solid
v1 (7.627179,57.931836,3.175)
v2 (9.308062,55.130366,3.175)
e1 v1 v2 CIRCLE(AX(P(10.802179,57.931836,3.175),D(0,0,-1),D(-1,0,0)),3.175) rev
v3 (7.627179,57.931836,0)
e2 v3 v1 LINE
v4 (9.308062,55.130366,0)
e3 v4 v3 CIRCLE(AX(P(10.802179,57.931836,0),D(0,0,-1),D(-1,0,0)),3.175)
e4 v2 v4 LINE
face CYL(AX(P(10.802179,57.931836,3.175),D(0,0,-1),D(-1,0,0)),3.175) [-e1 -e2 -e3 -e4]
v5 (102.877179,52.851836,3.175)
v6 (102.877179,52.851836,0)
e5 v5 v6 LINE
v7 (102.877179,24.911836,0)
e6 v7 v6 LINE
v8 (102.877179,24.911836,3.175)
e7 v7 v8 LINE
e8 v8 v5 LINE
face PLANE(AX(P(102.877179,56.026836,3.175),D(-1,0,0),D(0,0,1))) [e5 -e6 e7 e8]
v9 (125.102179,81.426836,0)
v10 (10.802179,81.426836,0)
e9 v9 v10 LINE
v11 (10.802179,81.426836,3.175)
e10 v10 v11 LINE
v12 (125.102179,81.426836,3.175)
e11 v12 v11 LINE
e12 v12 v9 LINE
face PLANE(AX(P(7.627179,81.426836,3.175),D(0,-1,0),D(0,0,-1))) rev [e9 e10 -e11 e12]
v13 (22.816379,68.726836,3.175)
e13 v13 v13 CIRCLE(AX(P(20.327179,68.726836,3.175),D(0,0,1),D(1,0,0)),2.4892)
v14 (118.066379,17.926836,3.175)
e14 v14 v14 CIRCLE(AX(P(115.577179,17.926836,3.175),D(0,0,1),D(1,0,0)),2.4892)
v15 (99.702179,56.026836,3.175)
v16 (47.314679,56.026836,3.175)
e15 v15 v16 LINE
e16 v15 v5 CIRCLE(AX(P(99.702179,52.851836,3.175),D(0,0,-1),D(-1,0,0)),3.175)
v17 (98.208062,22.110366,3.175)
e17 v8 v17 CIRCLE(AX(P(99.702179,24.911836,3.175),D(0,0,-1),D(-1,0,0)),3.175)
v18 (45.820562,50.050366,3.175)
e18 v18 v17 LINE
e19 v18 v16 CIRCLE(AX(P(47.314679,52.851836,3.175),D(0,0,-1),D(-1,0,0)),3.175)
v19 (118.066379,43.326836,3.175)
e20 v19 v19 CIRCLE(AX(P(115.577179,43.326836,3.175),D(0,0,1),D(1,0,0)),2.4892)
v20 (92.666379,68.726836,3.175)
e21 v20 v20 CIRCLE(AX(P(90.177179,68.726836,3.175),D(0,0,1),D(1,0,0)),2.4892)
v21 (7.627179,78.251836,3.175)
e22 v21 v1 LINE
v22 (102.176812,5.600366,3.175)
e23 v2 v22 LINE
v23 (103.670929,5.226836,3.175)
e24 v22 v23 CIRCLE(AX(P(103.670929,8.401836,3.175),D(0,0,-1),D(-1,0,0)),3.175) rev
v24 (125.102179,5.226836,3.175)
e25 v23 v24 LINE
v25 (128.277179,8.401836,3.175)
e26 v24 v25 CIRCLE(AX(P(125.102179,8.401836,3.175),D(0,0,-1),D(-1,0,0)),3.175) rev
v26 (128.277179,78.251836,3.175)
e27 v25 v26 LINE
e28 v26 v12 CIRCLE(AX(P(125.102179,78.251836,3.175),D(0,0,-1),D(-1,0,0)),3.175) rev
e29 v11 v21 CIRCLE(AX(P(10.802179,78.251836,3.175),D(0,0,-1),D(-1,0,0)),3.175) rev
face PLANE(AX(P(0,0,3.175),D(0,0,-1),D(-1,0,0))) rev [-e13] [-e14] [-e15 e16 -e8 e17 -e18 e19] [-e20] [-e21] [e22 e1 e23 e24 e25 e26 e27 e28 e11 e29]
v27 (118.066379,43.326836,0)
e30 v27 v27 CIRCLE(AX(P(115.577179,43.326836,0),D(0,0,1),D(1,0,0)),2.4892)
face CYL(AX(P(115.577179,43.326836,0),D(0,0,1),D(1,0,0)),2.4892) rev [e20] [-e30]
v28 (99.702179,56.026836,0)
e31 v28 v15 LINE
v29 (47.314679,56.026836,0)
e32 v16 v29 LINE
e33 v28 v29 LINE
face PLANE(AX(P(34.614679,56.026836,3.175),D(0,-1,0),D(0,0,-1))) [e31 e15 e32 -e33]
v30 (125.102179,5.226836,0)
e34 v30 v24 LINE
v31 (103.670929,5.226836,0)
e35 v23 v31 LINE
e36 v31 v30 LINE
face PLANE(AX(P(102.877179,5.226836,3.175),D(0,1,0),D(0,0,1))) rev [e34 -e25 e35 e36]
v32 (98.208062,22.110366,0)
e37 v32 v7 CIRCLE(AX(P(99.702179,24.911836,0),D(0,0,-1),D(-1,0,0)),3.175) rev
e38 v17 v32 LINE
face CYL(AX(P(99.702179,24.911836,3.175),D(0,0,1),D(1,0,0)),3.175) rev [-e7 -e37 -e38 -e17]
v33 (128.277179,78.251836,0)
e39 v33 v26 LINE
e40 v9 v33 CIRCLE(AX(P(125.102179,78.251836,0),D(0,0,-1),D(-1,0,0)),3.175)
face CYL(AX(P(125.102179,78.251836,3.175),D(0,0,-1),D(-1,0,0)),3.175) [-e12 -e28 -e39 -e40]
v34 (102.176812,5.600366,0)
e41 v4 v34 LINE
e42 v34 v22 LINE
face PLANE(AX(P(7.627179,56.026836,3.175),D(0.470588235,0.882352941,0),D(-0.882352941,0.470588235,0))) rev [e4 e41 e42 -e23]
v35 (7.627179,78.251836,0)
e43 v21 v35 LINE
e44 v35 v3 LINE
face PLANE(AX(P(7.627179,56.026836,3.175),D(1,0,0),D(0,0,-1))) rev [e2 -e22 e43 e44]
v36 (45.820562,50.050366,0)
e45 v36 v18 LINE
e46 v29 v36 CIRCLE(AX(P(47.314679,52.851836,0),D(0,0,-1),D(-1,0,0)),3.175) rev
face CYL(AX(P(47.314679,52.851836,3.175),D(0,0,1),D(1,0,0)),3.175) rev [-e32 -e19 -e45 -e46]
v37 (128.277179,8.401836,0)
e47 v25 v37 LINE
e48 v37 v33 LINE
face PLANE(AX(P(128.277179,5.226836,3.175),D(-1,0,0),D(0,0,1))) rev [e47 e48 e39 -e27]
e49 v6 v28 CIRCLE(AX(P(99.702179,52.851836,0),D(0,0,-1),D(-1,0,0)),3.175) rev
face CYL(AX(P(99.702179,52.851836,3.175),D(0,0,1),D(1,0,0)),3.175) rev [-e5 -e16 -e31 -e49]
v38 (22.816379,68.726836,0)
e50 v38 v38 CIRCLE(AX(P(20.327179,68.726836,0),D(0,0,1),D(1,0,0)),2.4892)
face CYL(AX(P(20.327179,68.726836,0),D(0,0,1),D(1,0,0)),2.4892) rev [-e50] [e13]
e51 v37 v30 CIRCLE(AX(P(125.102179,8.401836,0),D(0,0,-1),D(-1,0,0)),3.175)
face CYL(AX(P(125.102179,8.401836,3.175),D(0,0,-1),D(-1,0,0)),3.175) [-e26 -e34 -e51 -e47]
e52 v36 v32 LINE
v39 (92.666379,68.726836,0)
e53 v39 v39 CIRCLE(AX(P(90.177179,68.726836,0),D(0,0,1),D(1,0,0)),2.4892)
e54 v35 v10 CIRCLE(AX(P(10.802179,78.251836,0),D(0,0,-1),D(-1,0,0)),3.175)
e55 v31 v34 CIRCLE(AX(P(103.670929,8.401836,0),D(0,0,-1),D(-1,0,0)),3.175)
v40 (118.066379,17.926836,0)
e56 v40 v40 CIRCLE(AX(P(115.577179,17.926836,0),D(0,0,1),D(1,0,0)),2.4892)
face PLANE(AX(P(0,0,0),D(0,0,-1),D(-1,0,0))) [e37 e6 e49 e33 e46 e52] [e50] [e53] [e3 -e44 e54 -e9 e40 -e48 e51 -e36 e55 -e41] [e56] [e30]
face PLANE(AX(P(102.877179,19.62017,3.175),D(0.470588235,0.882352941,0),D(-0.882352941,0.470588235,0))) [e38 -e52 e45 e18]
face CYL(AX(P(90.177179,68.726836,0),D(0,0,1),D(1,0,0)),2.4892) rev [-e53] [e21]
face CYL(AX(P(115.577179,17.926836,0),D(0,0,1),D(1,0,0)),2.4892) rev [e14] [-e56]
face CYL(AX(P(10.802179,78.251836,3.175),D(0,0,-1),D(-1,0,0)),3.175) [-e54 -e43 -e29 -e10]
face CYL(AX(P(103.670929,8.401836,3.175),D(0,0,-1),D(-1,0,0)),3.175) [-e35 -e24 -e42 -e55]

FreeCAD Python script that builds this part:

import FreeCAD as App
import Part
import Sketcher

V = App.Vector
Q = App.Units.Quantity


def edges_at(feature, points):
    """Names of the edges that pass closest to the given points."""
    edges = feature.Shape.Edges
    near = lambda p: min(range(len(edges)), key=lambda i: edges[i].distToShape(Part.Vertex(*p))[0])
    return sorted({f"Edge{near(p) + 1}" for p in points})


def add_polygon(sketch, points):
    """Adds a closed chain of lines whose ends are joined by coincident constraints."""
    first, n = sketch.GeometryCount, len(points)
    for a, b in zip(points, points[1:] + points[:1]):
        sketch.addGeometry(Part.LineSegment(App.Vector(*a, 0), App.Vector(*b, 0)), False)
    for i in range(n):
        sketch.addConstraint(Sketcher.Constraint("Coincident", first + i, 2, first + (i + 1) % n, 1))

doc = App.newDocument("Part")
params = doc.addObject("Spreadsheet::Sheet", "Params")
for row, (alias, value) in enumerate([
    ("sketch1_width", "1 in"),
    ("sketch1_height", "3 in"),
    ("sketch1_width2", "4.75 in"),
    ("sketch1_width3", "2.6875 in"),
    ("pad1_length", "0.125 in"),
    ("sketch2_diameter", "0.196 in"),
    ("fillet_radius", "0.125 in"),
], start=1):
    params.set(f"A{row}", alias)
    params.set(f"B{row}", "=" + value)
    params.setAlias(f"B{row}", alias)

body = doc.addObject("PartDesign::Body", "Body")

# Sketch on XY plane
sketch1 = body.newObject("Sketcher::SketchObject", "Sketch")
sketch1.AttachmentSupport = (doc.getObject("XY_Plane"), [""])
sketch1.MapMode = "FlatFace"
add_polygon(sketch1, [(8, 56), (103, 5), (128, 5), (128, 81), (8, 81)])  # lines 0-4
add_polygon(sketch1, [(103, 20), (35, 56), (103, 56)])  # lines 5-7
sketch1.addConstraint([
    Sketcher.Constraint("Horizontal", 1),
    Sketcher.Constraint("Vertical", 2),
    Sketcher.Constraint("Horizontal", 3),
    Sketcher.Constraint("Vertical", 4),
    Sketcher.Constraint("Horizontal", 6),
    Sketcher.Constraint("Vertical", 7),
    Sketcher.Constraint("Parallel", 0, 5),
    Sketcher.Constraint("Horizontal", 4, 2, 5, 2),
    Sketcher.Constraint("Vertical", 0, 2, 6, 2),
    Sketcher.Constraint("Equal", 1, 4),
    Sketcher.Constraint("DistanceX", 1, 1, 1, 2, Q("1 in")),
    Sketcher.Constraint("DistanceY", 2, 1, 2, 2, Q("3 in")),
    Sketcher.Constraint("DistanceX", 3, 2, 3, 1, Q("4.75 in")),
    Sketcher.Constraint("DistanceX", 6, 1, 6, 2, Q("2.6875 in")),
    Sketcher.Constraint("DistanceX", -1, 1, 0, 2, Q("102.877179 mm")),
    Sketcher.Constraint("DistanceY", -1, 1, 7, 2, Q("19.62017 mm")),
])
sketch1.setExpression("Constraints[18]", "Params.sketch1_width")
sketch1.setExpression("Constraints[19]", "Params.sketch1_height")
sketch1.setExpression("Constraints[20]", "Params.sketch1_width2")
sketch1.setExpression("Constraints[21]", "Params.sketch1_width3")
pad1 = body.newObject("PartDesign::Pad", "Pad")
pad1.Profile = sketch1
pad1.setExpression("Length", "Params.pad1_length")

# Sketch on XY plane
sketch2 = body.newObject("Sketcher::SketchObject", "Sketch001")
sketch2.AttachmentSupport = (doc.getObject("XY_Plane"), [""])
sketch2.MapMode = "FlatFace"
sketch2.AttachmentOffset = App.Placement(V(0, 0, 0.125 * 25.4), App.Rotation())
sketch2.addGeometry([
    Part.Circle(V(115.6, 43.3, 0), V(0, 0, 1), 2.5),
    Part.Circle(V(115.6, 17.9, 0), V(0, 0, 1), 2.5),
    Part.Circle(V(90.2, 68.7, 0), V(0, 0, 1), 2.5),
    Part.Circle(V(20.3, 68.7, 0), V(0, 0, 1), 2.5),
], False)
sketch2.addConstraint([
    Sketcher.Constraint("Equal", 0, 1),
    Sketcher.Constraint("Equal", 1, 2),
    Sketcher.Constraint("Equal", 2, 3),
    Sketcher.Constraint("Horizontal", 2, 3, 3, 3),
    Sketcher.Constraint("Vertical", 0, 3, 1, 3),
    Sketcher.Constraint("Diameter", 0, Q("0.196 in")),
    Sketcher.Constraint("DistanceY", 1, 3, 0, 3, Q("1 in")),
    Sketcher.Constraint("DistanceX", 2, 3, 0, 3, Q("1 in")),
    Sketcher.Constraint("DistanceY", 0, 3, 2, 3, Q("1 in")),
    Sketcher.Constraint("DistanceX", 3, 3, 2, 3, Q("2.75 in")),
    Sketcher.Constraint("DistanceX", -1, 1, 0, 3, Q("115.577179 mm")),
    Sketcher.Constraint("DistanceY", -1, 1, 0, 3, Q("43.326836 mm")),
])
sketch2.setExpression("Constraints[5]", "Params.sketch2_diameter")
pocket1 = body.newObject("PartDesign::Pocket", "Pocket")
pocket1.Profile = sketch2
pocket1.Type = "ThroughAll"
doc.recompute()

fillet = body.newObject("PartDesign::Fillet", "Fillet")
fillet.Base = (pocket1, edges_at(pocket1, [
    (34.615, 56.027, 1.587),
    (102.877, 19.62, 1.587),
    (102.877, 56.027, 1.587),
    (128.277, 5.227, 1.587),
    (102.877, 5.227, 1.587),
    (7.627, 56.027, 1.587),
    (7.627, 81.427, 1.587),
    (128.277, 81.427, 1.587),
]))
fillet.setExpression("Radius", "Params.fillet_radius")

doc.recompute()
